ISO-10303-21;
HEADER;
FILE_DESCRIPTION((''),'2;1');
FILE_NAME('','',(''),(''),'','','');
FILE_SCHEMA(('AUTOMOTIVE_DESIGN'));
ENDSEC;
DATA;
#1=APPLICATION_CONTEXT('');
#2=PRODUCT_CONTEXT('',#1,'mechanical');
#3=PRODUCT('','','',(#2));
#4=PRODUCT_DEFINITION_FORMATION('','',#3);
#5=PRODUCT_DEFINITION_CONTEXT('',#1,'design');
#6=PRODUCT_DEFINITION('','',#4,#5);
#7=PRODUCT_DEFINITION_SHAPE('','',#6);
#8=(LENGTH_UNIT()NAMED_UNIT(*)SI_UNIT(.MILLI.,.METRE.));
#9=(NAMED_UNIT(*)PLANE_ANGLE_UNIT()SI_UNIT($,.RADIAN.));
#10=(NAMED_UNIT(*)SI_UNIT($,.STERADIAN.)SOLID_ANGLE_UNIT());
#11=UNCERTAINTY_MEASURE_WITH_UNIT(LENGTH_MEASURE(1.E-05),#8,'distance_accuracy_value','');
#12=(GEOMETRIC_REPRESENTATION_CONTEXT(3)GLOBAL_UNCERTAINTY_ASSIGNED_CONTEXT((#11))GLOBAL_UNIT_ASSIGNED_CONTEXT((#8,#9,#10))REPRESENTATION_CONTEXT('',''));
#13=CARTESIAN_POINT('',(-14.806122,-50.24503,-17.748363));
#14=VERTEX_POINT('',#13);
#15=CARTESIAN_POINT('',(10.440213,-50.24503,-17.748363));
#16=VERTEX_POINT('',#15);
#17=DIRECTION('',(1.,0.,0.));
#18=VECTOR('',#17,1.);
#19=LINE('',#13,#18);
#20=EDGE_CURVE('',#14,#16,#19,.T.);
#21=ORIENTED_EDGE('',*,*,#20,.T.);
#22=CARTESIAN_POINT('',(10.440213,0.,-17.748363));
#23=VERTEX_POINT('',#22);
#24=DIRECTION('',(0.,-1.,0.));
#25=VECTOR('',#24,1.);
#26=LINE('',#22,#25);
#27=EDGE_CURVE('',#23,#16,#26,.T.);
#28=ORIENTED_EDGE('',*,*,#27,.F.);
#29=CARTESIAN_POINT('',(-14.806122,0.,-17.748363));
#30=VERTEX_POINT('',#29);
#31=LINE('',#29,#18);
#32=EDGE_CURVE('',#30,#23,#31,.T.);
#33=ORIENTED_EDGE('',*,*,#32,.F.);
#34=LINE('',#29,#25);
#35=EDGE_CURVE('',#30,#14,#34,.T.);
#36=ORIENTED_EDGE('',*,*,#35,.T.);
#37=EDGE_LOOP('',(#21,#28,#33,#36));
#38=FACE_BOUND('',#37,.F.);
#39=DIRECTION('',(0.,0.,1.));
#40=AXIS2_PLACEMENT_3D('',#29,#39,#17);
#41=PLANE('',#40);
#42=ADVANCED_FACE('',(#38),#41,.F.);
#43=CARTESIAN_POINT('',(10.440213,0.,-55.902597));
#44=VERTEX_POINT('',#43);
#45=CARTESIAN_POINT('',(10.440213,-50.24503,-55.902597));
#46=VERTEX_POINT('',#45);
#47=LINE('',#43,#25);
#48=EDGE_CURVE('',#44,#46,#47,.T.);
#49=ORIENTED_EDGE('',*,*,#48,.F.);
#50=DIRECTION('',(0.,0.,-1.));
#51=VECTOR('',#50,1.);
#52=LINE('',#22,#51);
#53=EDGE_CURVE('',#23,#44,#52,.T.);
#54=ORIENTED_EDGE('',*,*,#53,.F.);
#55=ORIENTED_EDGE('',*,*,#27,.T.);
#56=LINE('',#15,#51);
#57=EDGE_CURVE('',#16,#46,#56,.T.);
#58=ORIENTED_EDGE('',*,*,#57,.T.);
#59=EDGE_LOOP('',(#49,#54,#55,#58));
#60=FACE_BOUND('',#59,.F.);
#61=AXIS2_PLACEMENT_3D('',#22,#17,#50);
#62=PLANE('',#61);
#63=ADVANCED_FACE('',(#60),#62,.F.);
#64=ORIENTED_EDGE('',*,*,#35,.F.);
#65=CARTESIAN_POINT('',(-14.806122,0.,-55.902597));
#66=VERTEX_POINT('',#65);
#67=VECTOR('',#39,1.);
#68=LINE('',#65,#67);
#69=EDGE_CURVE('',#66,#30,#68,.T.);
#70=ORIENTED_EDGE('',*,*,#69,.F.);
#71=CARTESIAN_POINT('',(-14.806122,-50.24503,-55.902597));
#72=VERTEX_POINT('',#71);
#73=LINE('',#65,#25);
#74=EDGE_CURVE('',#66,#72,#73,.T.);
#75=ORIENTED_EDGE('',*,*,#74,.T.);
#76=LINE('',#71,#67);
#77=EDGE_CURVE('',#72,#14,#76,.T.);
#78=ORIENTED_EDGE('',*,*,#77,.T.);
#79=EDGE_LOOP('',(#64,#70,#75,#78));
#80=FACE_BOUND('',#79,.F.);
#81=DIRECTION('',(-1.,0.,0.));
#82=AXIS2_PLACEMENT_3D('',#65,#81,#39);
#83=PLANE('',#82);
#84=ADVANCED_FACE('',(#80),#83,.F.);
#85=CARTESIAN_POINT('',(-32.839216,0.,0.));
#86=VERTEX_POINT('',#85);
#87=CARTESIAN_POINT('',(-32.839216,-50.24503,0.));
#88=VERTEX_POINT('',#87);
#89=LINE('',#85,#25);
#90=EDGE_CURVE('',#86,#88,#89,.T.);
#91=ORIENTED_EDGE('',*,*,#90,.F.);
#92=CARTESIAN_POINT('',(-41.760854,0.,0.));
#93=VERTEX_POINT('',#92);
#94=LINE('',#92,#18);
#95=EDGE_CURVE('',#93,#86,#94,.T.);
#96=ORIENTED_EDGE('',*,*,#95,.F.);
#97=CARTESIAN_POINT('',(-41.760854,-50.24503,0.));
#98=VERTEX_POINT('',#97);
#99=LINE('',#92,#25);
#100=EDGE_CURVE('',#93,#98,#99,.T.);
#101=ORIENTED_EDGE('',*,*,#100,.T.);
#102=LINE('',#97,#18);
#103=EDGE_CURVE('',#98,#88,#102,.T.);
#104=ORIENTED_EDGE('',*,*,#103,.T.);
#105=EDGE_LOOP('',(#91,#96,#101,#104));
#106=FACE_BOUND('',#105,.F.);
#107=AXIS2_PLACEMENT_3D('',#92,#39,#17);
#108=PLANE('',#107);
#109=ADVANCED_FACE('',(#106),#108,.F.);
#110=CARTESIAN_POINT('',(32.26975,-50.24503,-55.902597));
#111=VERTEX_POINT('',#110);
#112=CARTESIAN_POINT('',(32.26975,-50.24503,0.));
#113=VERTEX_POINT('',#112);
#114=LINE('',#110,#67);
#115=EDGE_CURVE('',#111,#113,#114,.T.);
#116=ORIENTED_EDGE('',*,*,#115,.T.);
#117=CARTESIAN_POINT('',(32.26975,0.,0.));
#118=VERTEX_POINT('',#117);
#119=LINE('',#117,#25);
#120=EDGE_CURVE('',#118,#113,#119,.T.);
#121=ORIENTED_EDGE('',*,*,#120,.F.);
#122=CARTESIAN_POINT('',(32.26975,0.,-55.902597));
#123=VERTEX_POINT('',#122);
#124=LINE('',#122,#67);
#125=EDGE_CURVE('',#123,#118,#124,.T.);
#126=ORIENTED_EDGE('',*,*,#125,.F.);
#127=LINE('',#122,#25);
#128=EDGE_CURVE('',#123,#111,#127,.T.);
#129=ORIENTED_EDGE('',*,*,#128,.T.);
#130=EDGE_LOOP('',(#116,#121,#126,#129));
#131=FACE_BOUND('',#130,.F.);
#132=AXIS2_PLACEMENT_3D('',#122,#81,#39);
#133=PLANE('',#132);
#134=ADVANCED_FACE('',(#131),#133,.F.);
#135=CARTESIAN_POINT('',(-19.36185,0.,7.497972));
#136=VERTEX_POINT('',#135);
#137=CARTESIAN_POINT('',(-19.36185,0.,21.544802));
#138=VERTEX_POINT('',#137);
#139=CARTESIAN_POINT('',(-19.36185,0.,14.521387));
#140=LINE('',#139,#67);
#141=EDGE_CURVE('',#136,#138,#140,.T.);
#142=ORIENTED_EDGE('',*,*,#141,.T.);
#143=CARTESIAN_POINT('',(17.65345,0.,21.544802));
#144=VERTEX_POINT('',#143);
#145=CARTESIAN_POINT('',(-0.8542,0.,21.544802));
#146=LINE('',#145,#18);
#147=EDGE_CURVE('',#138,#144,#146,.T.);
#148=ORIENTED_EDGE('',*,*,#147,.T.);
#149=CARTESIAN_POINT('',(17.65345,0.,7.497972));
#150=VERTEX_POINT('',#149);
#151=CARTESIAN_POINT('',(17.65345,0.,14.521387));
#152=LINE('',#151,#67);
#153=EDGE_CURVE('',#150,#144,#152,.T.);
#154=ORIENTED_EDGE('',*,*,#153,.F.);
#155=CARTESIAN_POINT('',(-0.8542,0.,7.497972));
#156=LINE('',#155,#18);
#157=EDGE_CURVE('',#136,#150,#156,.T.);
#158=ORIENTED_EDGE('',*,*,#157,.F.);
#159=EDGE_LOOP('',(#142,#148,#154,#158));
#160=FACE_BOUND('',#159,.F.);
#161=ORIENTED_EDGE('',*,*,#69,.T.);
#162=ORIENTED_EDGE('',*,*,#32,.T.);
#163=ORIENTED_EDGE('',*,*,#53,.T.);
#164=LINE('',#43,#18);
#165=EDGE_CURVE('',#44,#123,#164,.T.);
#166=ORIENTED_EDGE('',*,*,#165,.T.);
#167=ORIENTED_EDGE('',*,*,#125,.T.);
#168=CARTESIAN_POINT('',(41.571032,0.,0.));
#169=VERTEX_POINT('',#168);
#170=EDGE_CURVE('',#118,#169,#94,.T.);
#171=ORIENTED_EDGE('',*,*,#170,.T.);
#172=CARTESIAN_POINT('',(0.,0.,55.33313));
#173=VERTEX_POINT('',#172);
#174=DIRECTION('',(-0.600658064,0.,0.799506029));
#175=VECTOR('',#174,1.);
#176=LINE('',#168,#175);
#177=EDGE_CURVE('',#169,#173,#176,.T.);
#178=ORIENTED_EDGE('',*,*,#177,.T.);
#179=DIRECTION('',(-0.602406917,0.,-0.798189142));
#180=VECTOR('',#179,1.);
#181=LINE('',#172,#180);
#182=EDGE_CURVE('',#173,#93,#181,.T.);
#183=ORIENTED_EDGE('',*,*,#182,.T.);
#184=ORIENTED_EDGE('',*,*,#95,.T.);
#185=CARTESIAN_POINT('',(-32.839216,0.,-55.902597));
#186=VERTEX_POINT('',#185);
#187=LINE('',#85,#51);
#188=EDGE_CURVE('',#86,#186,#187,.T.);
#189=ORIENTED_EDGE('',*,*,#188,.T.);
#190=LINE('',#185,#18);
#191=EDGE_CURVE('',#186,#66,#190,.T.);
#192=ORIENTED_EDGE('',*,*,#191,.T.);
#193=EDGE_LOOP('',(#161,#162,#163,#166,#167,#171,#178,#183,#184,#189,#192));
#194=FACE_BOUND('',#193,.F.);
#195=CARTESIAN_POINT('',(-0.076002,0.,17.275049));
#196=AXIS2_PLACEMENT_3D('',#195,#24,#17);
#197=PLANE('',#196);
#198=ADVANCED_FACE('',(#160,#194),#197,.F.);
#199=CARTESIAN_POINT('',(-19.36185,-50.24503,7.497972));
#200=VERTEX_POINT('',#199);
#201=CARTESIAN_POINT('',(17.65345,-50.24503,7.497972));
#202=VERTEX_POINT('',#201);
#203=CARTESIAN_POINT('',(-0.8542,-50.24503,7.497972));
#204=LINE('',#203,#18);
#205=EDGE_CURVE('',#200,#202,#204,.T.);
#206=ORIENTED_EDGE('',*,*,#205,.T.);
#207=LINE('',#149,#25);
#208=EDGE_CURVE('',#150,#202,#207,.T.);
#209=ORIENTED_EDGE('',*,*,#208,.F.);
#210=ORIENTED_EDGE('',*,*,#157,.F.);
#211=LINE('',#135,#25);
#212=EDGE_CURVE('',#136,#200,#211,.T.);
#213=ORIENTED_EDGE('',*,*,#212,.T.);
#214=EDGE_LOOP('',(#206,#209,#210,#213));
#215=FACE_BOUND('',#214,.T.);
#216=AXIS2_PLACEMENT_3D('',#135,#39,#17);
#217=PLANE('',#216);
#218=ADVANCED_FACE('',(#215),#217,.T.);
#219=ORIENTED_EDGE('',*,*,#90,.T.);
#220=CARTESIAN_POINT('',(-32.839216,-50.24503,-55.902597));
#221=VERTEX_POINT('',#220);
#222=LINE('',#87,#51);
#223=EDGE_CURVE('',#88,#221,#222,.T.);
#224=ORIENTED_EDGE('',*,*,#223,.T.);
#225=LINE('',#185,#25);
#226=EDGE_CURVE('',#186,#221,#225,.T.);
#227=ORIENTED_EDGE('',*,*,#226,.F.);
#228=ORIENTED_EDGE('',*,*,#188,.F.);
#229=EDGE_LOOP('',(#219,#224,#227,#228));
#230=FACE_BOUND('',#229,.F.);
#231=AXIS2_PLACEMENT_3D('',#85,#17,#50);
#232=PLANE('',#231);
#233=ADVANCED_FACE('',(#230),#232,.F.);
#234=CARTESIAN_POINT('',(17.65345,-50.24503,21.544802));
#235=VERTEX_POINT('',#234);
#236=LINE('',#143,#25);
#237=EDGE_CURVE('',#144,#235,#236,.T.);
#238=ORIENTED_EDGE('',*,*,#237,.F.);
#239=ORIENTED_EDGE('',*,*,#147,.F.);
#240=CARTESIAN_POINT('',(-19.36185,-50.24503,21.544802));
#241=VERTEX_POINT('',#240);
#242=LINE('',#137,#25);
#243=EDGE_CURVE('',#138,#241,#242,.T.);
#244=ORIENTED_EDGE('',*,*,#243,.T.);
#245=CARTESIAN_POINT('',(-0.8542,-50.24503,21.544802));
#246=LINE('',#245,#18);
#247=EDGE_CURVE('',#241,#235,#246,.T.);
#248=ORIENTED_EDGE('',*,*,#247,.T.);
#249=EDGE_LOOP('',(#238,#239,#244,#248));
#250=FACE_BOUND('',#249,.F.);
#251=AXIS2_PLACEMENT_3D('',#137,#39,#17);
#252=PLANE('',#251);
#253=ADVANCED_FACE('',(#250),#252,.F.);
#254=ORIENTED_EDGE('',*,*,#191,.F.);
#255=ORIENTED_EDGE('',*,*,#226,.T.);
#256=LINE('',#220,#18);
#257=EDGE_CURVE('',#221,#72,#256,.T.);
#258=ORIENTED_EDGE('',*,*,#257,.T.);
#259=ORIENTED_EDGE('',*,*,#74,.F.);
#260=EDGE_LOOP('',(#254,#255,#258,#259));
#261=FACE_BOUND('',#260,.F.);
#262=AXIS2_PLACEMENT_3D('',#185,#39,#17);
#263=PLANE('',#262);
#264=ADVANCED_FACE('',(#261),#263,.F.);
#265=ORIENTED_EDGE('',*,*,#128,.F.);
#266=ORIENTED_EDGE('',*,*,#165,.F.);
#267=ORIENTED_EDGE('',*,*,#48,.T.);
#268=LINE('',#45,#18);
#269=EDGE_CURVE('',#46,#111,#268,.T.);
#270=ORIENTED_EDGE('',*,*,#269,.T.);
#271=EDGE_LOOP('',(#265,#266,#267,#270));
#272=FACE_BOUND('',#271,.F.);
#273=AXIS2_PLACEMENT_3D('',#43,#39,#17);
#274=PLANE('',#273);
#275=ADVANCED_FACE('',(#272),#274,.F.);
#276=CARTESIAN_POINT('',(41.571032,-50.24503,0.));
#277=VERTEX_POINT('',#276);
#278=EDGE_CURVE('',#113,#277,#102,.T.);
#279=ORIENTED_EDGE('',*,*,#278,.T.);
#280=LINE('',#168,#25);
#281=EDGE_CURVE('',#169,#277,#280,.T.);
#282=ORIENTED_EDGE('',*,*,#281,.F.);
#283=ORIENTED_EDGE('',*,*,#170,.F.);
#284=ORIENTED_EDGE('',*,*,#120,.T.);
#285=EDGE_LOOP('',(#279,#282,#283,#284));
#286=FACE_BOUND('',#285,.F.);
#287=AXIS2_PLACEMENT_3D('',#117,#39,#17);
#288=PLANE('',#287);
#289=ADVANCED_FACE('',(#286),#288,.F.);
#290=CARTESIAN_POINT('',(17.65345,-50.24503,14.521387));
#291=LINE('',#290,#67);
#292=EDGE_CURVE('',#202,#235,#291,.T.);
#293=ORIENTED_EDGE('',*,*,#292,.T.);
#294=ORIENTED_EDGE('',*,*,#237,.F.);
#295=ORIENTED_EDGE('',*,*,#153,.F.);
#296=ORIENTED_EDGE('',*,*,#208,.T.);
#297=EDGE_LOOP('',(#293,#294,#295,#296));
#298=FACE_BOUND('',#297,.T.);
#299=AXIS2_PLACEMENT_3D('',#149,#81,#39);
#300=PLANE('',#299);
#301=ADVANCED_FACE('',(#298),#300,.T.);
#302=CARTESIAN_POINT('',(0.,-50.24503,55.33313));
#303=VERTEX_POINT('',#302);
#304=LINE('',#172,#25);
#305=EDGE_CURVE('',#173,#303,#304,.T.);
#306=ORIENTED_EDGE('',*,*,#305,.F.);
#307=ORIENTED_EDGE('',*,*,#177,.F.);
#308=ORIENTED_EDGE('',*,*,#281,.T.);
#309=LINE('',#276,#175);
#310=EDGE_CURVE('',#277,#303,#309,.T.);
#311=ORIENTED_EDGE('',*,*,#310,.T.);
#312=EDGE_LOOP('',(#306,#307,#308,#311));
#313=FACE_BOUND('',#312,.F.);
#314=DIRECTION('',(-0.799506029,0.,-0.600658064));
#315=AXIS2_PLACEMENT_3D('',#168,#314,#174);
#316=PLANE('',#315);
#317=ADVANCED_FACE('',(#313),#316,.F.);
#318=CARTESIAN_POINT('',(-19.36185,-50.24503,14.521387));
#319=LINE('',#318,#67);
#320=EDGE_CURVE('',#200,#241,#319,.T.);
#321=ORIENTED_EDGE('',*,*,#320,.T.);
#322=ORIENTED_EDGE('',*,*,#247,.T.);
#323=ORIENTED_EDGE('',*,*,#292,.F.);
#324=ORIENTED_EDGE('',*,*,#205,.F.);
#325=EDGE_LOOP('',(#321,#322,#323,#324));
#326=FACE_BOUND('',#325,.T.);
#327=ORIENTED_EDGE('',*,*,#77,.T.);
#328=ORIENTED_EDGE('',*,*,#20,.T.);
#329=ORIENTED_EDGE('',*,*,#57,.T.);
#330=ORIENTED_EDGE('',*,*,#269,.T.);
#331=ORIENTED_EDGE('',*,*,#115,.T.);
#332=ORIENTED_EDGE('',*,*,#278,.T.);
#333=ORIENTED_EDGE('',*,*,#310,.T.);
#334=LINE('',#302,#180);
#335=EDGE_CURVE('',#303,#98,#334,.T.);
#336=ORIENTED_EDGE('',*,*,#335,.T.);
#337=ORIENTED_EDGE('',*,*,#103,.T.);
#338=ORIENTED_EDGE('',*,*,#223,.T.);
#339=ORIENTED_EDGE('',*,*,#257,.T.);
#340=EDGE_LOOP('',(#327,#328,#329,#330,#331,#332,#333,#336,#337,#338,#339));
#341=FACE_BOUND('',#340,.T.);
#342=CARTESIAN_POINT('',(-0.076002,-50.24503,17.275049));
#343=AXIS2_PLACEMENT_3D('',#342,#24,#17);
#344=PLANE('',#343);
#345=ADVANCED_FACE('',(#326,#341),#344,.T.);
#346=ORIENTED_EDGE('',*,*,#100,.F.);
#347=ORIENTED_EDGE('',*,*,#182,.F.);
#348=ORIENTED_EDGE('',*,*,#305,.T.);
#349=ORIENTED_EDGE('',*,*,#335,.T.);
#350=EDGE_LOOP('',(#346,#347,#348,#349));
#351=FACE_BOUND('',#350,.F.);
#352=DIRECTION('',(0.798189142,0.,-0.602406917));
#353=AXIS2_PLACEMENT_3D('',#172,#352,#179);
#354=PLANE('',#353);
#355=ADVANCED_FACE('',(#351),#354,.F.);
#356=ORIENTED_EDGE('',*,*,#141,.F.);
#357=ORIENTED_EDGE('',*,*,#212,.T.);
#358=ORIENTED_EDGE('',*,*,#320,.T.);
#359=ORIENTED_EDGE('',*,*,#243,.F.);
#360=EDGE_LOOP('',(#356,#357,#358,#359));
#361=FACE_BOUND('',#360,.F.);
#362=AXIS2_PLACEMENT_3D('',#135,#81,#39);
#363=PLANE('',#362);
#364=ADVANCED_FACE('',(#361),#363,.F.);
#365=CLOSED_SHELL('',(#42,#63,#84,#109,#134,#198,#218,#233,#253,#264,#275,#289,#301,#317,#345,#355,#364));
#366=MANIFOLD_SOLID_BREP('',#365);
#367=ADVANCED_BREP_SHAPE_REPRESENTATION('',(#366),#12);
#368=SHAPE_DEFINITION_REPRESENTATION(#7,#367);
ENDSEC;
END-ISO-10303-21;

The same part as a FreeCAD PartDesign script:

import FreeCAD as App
import Part
import Sketcher

V = App.Vector

doc = App.newDocument("Part")
body = doc.addObject("PartDesign::Body", "Body")

# Sketch on XZ plane
sketch1 = doc.addObject("Sketcher::SketchObject", "Sketch")
body.addObject(sketch1)
sketch1.AttachmentSupport = (doc.XZ_Plane, [""])
sketch1.MapMode = "FlatFace"
sketch1.addGeometry([
    Part.LineSegment(V(-41.760854, 0, 0), V(-32.839216, 0, 0)),  # 0
    Part.LineSegment(V(-32.839216, 0, 0), V(-32.839216, -55.902597, 0)),  # 1
    Part.LineSegment(V(-32.839216, -55.902597, 0), V(-14.806122, -55.902597, 0)),  # 2
    Part.LineSegment(V(-14.806122, -55.902597, 0), V(-14.806122, -17.748363, 0)),  # 3
    Part.LineSegment(V(-14.806122, -17.748363, 0), V(10.440213, -17.748363, 0)),  # 4
    Part.LineSegment(V(10.440213, -17.748363, 0), V(10.440213, -55.902597, 0)),  # 5
    Part.LineSegment(V(10.440213, -55.902597, 0), V(32.26975, -55.902597, 0)),  # 6
    Part.LineSegment(V(32.26975, -55.902597, 0), V(32.26975, 0, 0)),  # 7
    Part.LineSegment(V(32.26975, 0, 0), V(41.571032, 0, 0)),  # 8
    Part.LineSegment(V(41.571032, 0, 0), V(0, 55.33313, 0)),  # 9
    Part.LineSegment(V(0, 55.33313, 0), V(-41.760854, 0, 0)),  # 10
    Part.LineSegment(V(17.65345, 7.497972, 0), V(-19.36185, 7.497972, 0)),  # 11
    Part.LineSegment(V(-19.36185, 7.497972, 0), V(-19.36185, 21.544802, 0)),  # 12
    Part.LineSegment(V(-19.36185, 21.544802, 0), V(17.65345, 21.544802, 0)),  # 13
    Part.LineSegment(V(17.65345, 21.544802, 0), V(17.65345, 7.497972, 0)),  # 14
], False)
sketch1.addConstraint([
    Sketcher.Constraint("Coincident", 0, 2, 1, 1),
    Sketcher.Constraint("Coincident", 1, 2, 2, 1),
    Sketcher.Constraint("Coincident", 2, 2, 3, 1),
    Sketcher.Constraint("Coincident", 3, 2, 4, 1),
    Sketcher.Constraint("Coincident", 4, 2, 5, 1),
    Sketcher.Constraint("Coincident", 5, 2, 6, 1),
    Sketcher.Constraint("Coincident", 6, 2, 7, 1),
    Sketcher.Constraint("Coincident", 7, 2, 8, 1),
    Sketcher.Constraint("Coincident", 8, 2, 9, 1),
    Sketcher.Constraint("Coincident", 9, 2, 10, 1),
    Sketcher.Constraint("Coincident", 10, 2, 0, 1),
    Sketcher.Constraint("Coincident", 11, 2, 12, 1),
    Sketcher.Constraint("Coincident", 12, 2, 13, 1),
    Sketcher.Constraint("Coincident", 13, 2, 14, 1),
    Sketcher.Constraint("Coincident", 14, 2, 11, 1),
    Sketcher.Constraint("Horizontal", 0),
    Sketcher.Constraint("Vertical", 1),
    Sketcher.Constraint("Horizontal", 2),
    Sketcher.Constraint("Vertical", 3),
    Sketcher.Constraint("Horizontal", 4),
    Sketcher.Constraint("Vertical", 5),
    Sketcher.Constraint("Horizontal", 6),
    Sketcher.Constraint("Vertical", 7),
    Sketcher.Constraint("Horizontal", 8),
    Sketcher.Constraint("Horizontal", 11),
    Sketcher.Constraint("Vertical", 12),
    Sketcher.Constraint("Horizontal", 13),
    Sketcher.Constraint("Vertical", 14),
    Sketcher.Constraint("PointOnObject", 0, 2, -1),
    Sketcher.Constraint("PointOnObject", 7, 2, -1),
    Sketcher.Constraint("PointOnObject", 9, 2, -2),
    Sketcher.Constraint("Horizontal", 2, 2, 5, 2),
    Sketcher.Constraint("DistanceX", 11, 2, 11, 1, 37.0153),
    Sketcher.Constraint("DistanceX", 0, 1, 0, 2, 8.921638),
    Sketcher.Constraint("DistanceY", 12, 1, 12, 2, 14.046831),
    Sketcher.Constraint("DistanceX", 13, 2, 7, 2, 14.6163),
    Sketcher.Constraint("Distance", 10, 69.323331),
    Sketcher.Constraint("DistanceX", 2, 1, 2, 2, 18.033094),
    Sketcher.Constraint("DistanceX", 4, 1, 4, 2, 25.246335),
    Sketcher.Constraint("DistanceX", 6, 1, 6, 2, 21.829537),
    Sketcher.Constraint("DistanceX", 8, 1, 8, 2, 9.301282),
    Sketcher.Constraint("DistanceY", 1, 2, 1, 1, 55.902597),
    Sketcher.Constraint("DistanceY", 3, 1, 3, 2, 38.154234),
    Sketcher.Constraint("DistanceX", -1, 1, 6, 2, 32.26975),
    Sketcher.Constraint("DistanceY", -1, 1, 11, 2, 7.497972),
])
pad1 = doc.addObject("PartDesign::Pad", "Pad")
body.addObject(pad1)
pad1.Profile = sketch1
pad1.Length = 50.24503

doc.recompute()
